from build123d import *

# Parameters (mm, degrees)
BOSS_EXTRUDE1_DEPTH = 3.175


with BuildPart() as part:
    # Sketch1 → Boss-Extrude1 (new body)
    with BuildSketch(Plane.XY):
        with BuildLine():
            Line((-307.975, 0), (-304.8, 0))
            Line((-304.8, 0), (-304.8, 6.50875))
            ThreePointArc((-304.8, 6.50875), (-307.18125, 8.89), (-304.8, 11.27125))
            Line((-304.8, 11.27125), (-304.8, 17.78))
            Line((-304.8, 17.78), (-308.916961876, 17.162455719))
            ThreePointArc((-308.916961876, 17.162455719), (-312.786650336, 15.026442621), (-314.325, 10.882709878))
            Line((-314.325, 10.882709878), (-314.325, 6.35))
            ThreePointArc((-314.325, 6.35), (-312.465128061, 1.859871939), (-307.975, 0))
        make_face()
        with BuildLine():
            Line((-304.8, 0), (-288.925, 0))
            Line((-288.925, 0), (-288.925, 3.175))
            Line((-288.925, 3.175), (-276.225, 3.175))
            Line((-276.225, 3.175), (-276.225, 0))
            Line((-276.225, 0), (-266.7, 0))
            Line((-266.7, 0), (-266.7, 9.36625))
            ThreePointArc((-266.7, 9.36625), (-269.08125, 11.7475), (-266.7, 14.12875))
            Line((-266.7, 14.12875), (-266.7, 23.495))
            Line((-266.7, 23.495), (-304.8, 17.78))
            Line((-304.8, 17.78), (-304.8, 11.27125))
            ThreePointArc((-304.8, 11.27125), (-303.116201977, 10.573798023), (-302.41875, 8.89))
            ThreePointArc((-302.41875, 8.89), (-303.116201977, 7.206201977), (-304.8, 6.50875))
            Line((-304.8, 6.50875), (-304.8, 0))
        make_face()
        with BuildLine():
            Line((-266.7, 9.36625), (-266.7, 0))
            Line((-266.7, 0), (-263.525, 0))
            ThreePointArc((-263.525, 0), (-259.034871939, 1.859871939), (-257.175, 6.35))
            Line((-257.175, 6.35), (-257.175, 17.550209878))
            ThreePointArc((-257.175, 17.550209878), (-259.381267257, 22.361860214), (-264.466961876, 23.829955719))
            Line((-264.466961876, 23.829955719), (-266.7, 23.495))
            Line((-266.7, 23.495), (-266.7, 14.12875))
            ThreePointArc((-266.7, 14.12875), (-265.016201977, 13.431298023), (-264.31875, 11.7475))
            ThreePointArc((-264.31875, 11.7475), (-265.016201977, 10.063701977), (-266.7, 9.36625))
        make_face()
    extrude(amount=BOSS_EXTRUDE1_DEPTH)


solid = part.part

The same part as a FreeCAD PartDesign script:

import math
import FreeCAD as App
import Part
import Sketcher
Q = App.Units.Quantity

doc = App.newDocument("Part")
body = doc.addObject("PartDesign::Body", "Body")

# Sketch on XY plane
sketch1 = doc.addObject("Sketcher::SketchObject", "Sketch")
body.addObject(sketch1)
sketch1.AttachmentSupport = (doc.XY_Plane, [""])
sketch1.MapMode = "FlatFace"
sketch1.addGeometry([
    Part.LineSegment(App.Vector(-307.975, 0, 0), App.Vector(-288.925, 0, 0)),  # 0
    Part.LineSegment(App.Vector(-288.925, 0, 0), App.Vector(-288.925, 3.175, 0)),  # 1
    Part.LineSegment(App.Vector(-288.925, 3.175, 0), App.Vector(-276.225, 3.175, 0)),  # 2
    Part.LineSegment(App.Vector(-276.225, 3.175, 0), App.Vector(-276.225, 0, 0)),  # 3
    Part.LineSegment(App.Vector(-276.225, 0, 0), App.Vector(-263.525, 0, 0)),  # 4
    Part.ArcOfCircle(Part.Circle(App.Vector(-263.525, 6.35, 0), App.Vector(0, 0, 1), 6.35), math.radians(-90), math.radians(0)),  # 5
    Part.LineSegment(App.Vector(-257.175, 6.35, 0), App.Vector(-257.175, 17.55021, 0)),  # 6
    Part.ArcOfCircle(Part.Circle(App.Vector(-263.525, 17.55021, 0), App.Vector(0, 0, 1), 6.35), math.radians(0), math.radians(98.530766)),  # 7
    Part.LineSegment(App.Vector(-264.466962, 23.829956, 0), App.Vector(-266.7, 23.495, 0)),  # 8
    Part.LineSegment(App.Vector(-266.7, 23.495, 0), App.Vector(-304.8, 17.78, 0)),  # 9
    Part.LineSegment(App.Vector(-304.8, 17.78, 0), App.Vector(-308.916962, 17.162456, 0)),  # 10
    Part.ArcOfCircle(Part.Circle(App.Vector(-307.975, 10.88271, 0), App.Vector(0, 0, 1), 6.35), math.radians(98.530766), math.radians(180)),  # 11
    Part.LineSegment(App.Vector(-314.325, 10.88271, 0), App.Vector(-314.325, 6.35, 0)),  # 12
    Part.ArcOfCircle(Part.Circle(App.Vector(-307.975, 6.35, 0), App.Vector(0, 0, 1), 6.35), math.radians(180), math.radians(270)),  # 13
    Part.ArcOfCircle(Part.Circle(App.Vector(-266.7, 11.7475, 0), App.Vector(0, 0, 1), 2.38125), math.radians(90), math.radians(270)),  # 14
    Part.ArcOfCircle(Part.Circle(App.Vector(-266.7, 11.7475, 0), App.Vector(0, 0, 1), 2.38125), math.radians(0), math.radians(90)),  # 15
    Part.ArcOfCircle(Part.Circle(App.Vector(-266.7, 11.7475, 0), App.Vector(0, 0, 1), 2.38125), math.radians(-90), math.radians(0)),  # 16
    Part.ArcOfCircle(Part.Circle(App.Vector(-304.8, 8.89, 0), App.Vector(0, 0, 1), 2.38125), math.radians(90), math.radians(270)),  # 17
    Part.ArcOfCircle(Part.Circle(App.Vector(-304.8, 8.89, 0), App.Vector(0, 0, 1), 2.38125), math.radians(0), math.radians(90)),  # 18
    Part.ArcOfCircle(Part.Circle(App.Vector(-304.8, 8.89, 0), App.Vector(0, 0, 1), 2.38125), math.radians(-90), math.radians(0)),  # 19
], False)
sketch1.addConstraint([
    Sketcher.Constraint("Coincident", 0, 2, 1, 1),
    Sketcher.Constraint("Coincident", 1, 2, 2, 1),
    Sketcher.Constraint("Coincident", 2, 2, 3, 1),
    Sketcher.Constraint("Coincident", 3, 2, 4, 1),
    Sketcher.Constraint("Tangent", 4, 2, 5, 1),
    Sketcher.Constraint("Tangent", 5, 2, 6, 1),
    Sketcher.Constraint("Tangent", 6, 2, 7, 1),
    Sketcher.Constraint("Tangent", 7, 2, 8, 1),
    Sketcher.Constraint("Coincident", 8, 2, 9, 1),
    Sketcher.Constraint("Coincident", 9, 2, 10, 1),
    Sketcher.Constraint("Tangent", 10, 2, 11, 1),
    Sketcher.Constraint("Tangent", 11, 2, 12, 1),
    Sketcher.Constraint("Tangent", 12, 2, 13, 1),
    Sketcher.Constraint("Tangent", 13, 2, 0, 1),
    Sketcher.Constraint("Tangent", 14, 1, 15, 2),
    Sketcher.Constraint("Tangent", 15, 1, 16, 2),
    Sketcher.Constraint("Tangent", 16, 1, 14, 2),
    Sketcher.Constraint("Tangent", 17, 1, 18, 2),
    Sketcher.Constraint("Tangent", 18, 1, 19, 2),
    Sketcher.Constraint("Tangent", 19, 1, 17, 2),
    Sketcher.Constraint("Horizontal", 0),
    Sketcher.Constraint("Vertical", 1),
    Sketcher.Constraint("Horizontal", 2),
    Sketcher.Constraint("Vertical", 3),
    Sketcher.Constraint("Horizontal", 4),
    Sketcher.Constraint("Vertical", 6),
    Sketcher.Constraint("Vertical", 12),
    Sketcher.Constraint("Equal", 5, 7),
    Sketcher.Constraint("Equal", 7, 11),
    Sketcher.Constraint("Equal", 11, 13),
    Sketcher.Constraint("Equal", 16, 17),
    Sketcher.Constraint("PointOnObject", 0, 2, -1),
    Sketcher.Constraint("PointOnObject", 3, 2, -1),
    Sketcher.Constraint("Parallel", 8, 9),
    Sketcher.Constraint("Parallel", 9, 10),
    Sketcher.Constraint("Horizontal", 16, 3, 15, 1),
    Sketcher.Constraint("Horizontal", 19, 3, 18, 1),
    Sketcher.Constraint("Vertical", 16, 3, 8, 2),
    Sketcher.Constraint("Vertical", 19, 3, 9, 2),
    Sketcher.Constraint("Vertical", 8, 2, 14, 1),
    Sketcher.Constraint("Vertical", 14, 1, 16, 1),
    Sketcher.Constraint("Vertical", 9, 2, 17, 1),
    Sketcher.Constraint("Vertical", 17, 1, 19, 1),
    Sketcher.Constraint("Equal", 2, 4),
    Sketcher.Constraint("Radius", 5, Q("0.25 in")),
    Sketcher.Constraint("DistanceX", 2, 1, 2, 2, Q("0.5 in")),
    Sketcher.Constraint("DistanceX", 17, 3, -1, 1, Q("12 in")),
    Sketcher.Constraint("Radius", 14, Q("0.09375 in")),
    Sketcher.Constraint("DistanceX", 0, 1, 0, 2, Q("0.75 in")),
    Sketcher.Constraint("DistanceX", 14, 3, -1, 1, Q("10.5 in")),
    Sketcher.Constraint("DistanceY", -1, 1, 9, 2, Q("0.7 in")),
    Sketcher.Constraint("DistanceY", 13, 3, 17, 3, Q("0.1 in")),
    Sketcher.Constraint("DistanceY", 1, 1, 1, 2, Q("0.125 in")),
    Sketcher.Constraint("DistanceX", 5, 3, -1, 1, Q("10.375 in")),
    Sketcher.Constraint("DistanceY", -1, 1, 8, 2, Q("0.925 in")),
    Sketcher.Constraint("DistanceY", -1, 1, 14, 3, Q("0.4625 in")),
])
pad1 = doc.addObject("PartDesign::Pad", "Pad")
body.addObject(pad1)
pad1.Profile = sketch1
pad1.Length = Q("0.125 in")

doc.recompute()
